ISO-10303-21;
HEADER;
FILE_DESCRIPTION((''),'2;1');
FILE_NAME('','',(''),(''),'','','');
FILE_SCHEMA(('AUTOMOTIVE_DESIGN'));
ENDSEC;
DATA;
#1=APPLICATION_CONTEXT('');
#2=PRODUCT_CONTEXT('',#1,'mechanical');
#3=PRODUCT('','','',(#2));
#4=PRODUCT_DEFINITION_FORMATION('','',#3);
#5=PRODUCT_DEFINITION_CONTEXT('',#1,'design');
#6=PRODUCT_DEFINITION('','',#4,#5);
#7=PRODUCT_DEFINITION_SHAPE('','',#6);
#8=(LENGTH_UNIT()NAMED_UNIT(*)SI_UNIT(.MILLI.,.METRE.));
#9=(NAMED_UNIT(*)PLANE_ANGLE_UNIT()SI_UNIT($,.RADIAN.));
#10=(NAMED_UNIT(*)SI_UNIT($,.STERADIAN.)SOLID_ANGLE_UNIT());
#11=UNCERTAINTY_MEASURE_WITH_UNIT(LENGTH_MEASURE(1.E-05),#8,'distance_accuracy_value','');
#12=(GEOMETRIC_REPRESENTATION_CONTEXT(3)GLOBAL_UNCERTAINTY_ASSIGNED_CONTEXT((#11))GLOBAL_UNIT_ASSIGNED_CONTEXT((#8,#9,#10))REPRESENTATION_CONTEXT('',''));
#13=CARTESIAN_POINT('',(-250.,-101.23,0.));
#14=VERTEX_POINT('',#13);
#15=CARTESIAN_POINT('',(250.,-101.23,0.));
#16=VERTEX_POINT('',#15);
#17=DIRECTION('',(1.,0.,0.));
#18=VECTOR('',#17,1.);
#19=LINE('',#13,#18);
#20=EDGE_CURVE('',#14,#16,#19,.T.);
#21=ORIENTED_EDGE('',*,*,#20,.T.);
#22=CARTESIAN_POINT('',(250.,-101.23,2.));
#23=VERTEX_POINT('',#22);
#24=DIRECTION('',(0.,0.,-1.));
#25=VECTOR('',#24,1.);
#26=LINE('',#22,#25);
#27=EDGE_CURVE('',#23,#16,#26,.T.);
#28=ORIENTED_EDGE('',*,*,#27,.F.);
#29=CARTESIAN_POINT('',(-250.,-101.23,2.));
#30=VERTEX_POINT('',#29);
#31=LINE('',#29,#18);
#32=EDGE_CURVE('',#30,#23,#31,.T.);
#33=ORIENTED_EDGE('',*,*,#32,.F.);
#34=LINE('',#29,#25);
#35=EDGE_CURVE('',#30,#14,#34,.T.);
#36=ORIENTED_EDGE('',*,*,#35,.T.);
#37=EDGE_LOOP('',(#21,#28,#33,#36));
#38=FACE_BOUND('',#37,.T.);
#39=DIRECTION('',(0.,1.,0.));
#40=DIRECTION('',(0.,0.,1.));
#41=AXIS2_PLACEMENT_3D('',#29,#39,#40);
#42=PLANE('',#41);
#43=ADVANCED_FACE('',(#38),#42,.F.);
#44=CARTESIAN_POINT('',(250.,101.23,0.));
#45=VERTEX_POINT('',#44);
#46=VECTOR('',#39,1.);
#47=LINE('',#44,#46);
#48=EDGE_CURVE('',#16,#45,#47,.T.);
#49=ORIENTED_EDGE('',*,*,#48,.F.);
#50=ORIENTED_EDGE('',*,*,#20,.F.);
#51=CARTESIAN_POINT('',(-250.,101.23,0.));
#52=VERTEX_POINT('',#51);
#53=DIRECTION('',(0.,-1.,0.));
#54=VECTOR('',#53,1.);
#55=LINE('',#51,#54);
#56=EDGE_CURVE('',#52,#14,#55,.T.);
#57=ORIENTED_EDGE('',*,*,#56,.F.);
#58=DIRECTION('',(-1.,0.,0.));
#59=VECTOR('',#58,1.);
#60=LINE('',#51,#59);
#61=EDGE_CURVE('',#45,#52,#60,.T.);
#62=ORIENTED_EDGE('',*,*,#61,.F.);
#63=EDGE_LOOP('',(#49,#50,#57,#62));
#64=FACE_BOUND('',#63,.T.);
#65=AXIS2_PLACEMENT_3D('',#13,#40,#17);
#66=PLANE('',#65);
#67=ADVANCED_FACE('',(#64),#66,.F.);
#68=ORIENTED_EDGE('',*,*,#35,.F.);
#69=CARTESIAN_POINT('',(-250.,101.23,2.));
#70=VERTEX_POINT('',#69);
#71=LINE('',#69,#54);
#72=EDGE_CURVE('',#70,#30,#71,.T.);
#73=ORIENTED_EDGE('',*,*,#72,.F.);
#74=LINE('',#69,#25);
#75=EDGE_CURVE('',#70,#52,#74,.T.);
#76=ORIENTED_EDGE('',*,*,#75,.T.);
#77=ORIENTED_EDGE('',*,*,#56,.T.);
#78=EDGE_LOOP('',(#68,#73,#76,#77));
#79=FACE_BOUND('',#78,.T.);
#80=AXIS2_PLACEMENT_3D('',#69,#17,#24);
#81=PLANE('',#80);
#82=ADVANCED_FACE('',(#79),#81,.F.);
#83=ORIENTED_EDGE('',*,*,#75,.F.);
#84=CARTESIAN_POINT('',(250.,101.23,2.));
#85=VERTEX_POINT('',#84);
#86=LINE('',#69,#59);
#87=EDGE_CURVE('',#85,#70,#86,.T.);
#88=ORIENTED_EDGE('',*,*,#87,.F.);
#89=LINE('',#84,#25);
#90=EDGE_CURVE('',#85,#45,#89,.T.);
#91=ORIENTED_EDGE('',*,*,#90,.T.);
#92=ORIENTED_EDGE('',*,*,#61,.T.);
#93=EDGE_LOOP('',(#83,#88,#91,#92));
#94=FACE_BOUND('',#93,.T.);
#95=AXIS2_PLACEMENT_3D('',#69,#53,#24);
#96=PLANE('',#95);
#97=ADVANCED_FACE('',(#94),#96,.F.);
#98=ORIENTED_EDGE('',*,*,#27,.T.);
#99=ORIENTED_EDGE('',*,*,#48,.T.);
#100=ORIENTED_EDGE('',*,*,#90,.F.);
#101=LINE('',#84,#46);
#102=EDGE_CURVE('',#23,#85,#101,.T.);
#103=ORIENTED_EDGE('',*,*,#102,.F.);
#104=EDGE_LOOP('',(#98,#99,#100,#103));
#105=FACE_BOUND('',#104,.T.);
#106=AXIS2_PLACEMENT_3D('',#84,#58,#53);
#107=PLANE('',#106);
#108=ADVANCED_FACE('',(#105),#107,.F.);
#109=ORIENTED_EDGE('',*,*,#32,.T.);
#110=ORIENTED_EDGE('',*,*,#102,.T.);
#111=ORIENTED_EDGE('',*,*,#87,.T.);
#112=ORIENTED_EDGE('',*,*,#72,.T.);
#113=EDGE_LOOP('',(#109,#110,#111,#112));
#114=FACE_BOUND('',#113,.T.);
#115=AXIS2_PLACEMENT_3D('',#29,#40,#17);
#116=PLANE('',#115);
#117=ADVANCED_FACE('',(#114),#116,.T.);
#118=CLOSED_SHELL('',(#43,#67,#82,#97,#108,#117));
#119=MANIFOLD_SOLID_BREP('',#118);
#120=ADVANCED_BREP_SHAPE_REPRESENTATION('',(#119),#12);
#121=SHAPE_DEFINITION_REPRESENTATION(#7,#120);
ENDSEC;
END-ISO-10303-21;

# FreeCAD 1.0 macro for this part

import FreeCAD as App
import Part
import Sketcher
from FreeCAD import Vector

doc = App.newDocument("Part")
body = doc.addObject("PartDesign::Body", "Body")

# Sketch on XY plane
sketch1 = body.newObject("Sketcher::SketchObject", "Sketch")
sketch1.AttachmentSupport = (doc.getObject("XY_Plane"), [""])
sketch1.MapMode = "FlatFace"
sketch1.addGeometry([
    Part.LineSegment(Vector(-250, 101.23, 0), Vector(-250, -101.23, 0)),
    Part.LineSegment(Vector(-250, -101.23, 0), Vector(250, -101.23, 0)),
    Part.LineSegment(Vector(250, -101.23, 0), Vector(250, 101.23, 0)),
    Part.LineSegment(Vector(250, 101.23, 0), Vector(-250, 101.23, 0)),
], False)
sketch1.addConstraint([
    Sketcher.Constraint("Coincident", 0, 2, 1, 1),
    Sketcher.Constraint("Coincident", 1, 2, 2, 1),
    Sketcher.Constraint("Coincident", 2, 2, 3, 1),
    Sketcher.Constraint("Coincident", 3, 2, 0, 1),
    Sketcher.Constraint("Vertical", 0),
    Sketcher.Constraint("Horizontal", 1),
    Sketcher.Constraint("Vertical", 2),
    Sketcher.Constraint("Horizontal", 3),
    Sketcher.Constraint("Symmetric", 0, 2, 2, 2, -1, 1),
    Sketcher.Constraint("DistanceX", 1, 1, 1, 2, 500.0),
    Sketcher.Constraint("DistanceY", 0, 2, 0, 1, 202.46),
])
pad1 = body.newObject("PartDesign::Pad", "Pad")
pad1.Profile = sketch1
pad1.Length = 2

doc.recompute()
